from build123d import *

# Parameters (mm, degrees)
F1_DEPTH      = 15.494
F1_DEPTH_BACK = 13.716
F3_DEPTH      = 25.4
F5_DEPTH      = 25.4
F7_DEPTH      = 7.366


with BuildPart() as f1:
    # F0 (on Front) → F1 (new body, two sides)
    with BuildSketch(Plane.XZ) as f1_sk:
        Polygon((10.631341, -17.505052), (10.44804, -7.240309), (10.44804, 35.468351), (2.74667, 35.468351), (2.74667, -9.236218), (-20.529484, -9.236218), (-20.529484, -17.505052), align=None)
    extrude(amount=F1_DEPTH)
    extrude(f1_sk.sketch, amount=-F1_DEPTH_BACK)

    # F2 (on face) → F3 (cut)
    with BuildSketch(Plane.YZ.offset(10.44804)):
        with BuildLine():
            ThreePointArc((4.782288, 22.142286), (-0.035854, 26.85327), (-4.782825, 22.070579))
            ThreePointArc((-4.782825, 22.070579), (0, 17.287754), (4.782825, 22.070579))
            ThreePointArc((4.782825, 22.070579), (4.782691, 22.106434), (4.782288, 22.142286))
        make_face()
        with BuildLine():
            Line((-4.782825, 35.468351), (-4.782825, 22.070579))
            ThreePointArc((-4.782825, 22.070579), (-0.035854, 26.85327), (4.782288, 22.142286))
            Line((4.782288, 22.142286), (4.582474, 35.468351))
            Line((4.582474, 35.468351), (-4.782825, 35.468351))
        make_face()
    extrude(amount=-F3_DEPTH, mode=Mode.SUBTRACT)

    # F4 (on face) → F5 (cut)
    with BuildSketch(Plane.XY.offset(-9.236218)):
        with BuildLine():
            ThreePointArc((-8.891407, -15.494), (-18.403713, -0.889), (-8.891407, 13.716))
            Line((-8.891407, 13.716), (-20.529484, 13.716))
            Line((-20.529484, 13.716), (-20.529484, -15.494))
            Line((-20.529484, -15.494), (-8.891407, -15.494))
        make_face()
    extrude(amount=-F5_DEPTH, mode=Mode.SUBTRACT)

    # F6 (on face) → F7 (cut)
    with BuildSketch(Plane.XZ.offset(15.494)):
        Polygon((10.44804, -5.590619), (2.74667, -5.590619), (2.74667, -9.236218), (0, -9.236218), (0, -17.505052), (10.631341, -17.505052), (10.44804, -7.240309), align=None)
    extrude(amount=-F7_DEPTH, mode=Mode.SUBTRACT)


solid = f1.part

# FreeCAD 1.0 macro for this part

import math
import FreeCAD as App
import Part
import Sketcher
from FreeCAD import Vector
Q = App.Units.Quantity


def add_polygon(sketch, points):
    """Adds a closed chain of lines whose ends are joined by coincident constraints."""
    first, n = sketch.GeometryCount, len(points)
    for a, b in zip(points, points[1:] + points[:1]):
        sketch.addGeometry(Part.LineSegment(App.Vector(*a, 0), App.Vector(*b, 0)), False)
    for i in range(n):
        sketch.addConstraint(Sketcher.Constraint("Coincident", first + i, 2, first + (i + 1) % n, 1))

doc = App.newDocument("Part")
body = doc.addObject("PartDesign::Body", "Body")

# Sketch on XZ plane
sketch1 = body.newObject("Sketcher::SketchObject", "Sketch")
sketch1.AttachmentSupport = (doc.getObject("XZ_Plane"), [""])
sketch1.MapMode = "FlatFace"
add_polygon(sketch1, [(11, -18), (10, -7), (10, 35), (3, 35), (3, -9), (-21, -9), (-21, -18)])  # lines 0-6
sketch1.addConstraint([
    Sketcher.Constraint("Vertical", 1),
    Sketcher.Constraint("Horizontal", 2),
    Sketcher.Constraint("Vertical", 3),
    Sketcher.Constraint("Horizontal", 4),
    Sketcher.Constraint("Vertical", 5),
    Sketcher.Constraint("Horizontal", 6),
    Sketcher.Constraint("DistanceX", 2, 2, 2, 1, 7.70137),
    Sketcher.Constraint("DistanceY", 1, 1, 1, 2, 42.70866),
    Sketcher.Constraint("DistanceY", 3, 2, 3, 1, 44.704569),
    Sketcher.Constraint("DistanceX", 0, 2, 6, 2, 0.183301),
    Sketcher.Constraint("Distance", 0, 10.26638),
    Sketcher.Constraint("DistanceX", 4, 2, 4, 1, 23.276154),
    Sketcher.Constraint("DistanceX", -1, 1, 0, 2, 10.44804),
    Sketcher.Constraint("DistanceY", 0, 2, -1, 1, 7.240309),
])
pad1 = body.newObject("PartDesign::Pad", "Pad")
pad1.Profile = sketch1
pad1.Type = "TwoLengths"
pad1.Length = Q("0.61 in")
pad1.Length2 = Q("0.54 in")

# Sketch on YZ plane
sketch2 = body.newObject("Sketcher::SketchObject", "Sketch001")
sketch2.AttachmentSupport = (doc.getObject("YZ_Plane"), [""])
sketch2.MapMode = "FlatFace"
sketch2.AttachmentOffset = App.Placement(Vector(0, 0, 10.44804), App.Rotation())
sketch2.addGeometry([
    Part.ArcOfCircle(Part.Circle(Vector(0, 22.07, 0), Vector(0, 0, 1), 4.78), math.radians(180), math.radians(360)),  # 0
    Part.ArcOfCircle(Part.Circle(Vector(0, 22.07, 0), Vector(0, 0, 1), 4.78), math.radians(0), math.radians(0.86)),  # 1
    Part.LineSegment(Vector(4.78, 22.14, 0), Vector(4.58, 35.47, 0)),  # 2
    Part.LineSegment(Vector(4.58, 35.47, 0), Vector(-4.78, 35.47, 0)),  # 3
    Part.LineSegment(Vector(-4.78, 35.47, 0), Vector(-4.78, 22.07, 0)),  # 4
], False)
sketch2.addConstraint([
    Sketcher.Constraint("Coincident", 0, 2, 1, 1),
    Sketcher.Constraint("Tangent", 1, 2, 2, 1),
    Sketcher.Constraint("Coincident", 2, 2, 3, 1),
    Sketcher.Constraint("Coincident", 3, 2, 4, 1),
    Sketcher.Constraint("Tangent", 4, 2, 0, 1),
    Sketcher.Constraint("Horizontal", 3),
    Sketcher.Constraint("Vertical", 4),
    Sketcher.Constraint("Symmetric", 0, 2, 4, 2, -2),
    Sketcher.Constraint("Radius", 0, Q("0.1883002 in")),
    Sketcher.Constraint("Radius", 1, 4.778782),
    Sketcher.Constraint("DistanceX", 3, 2, 3, 1, 9.365299),
    Sketcher.Constraint("DistanceY", 4, 2, 4, 1, 13.397772),
    Sketcher.Constraint("DistanceY", -1, 1, 0, 3, 22.070579),
    Sketcher.Constraint("Distance", 2, 13.327563),
])
pocket1 = body.newObject("PartDesign::Pocket", "Pocket")
pocket1.Profile = sketch2
pocket1.Length = Q("1 in")

# Sketch on XY plane
sketch3 = body.newObject("Sketcher::SketchObject", "Sketch002")
sketch3.AttachmentSupport = (doc.getObject("XY_Plane"), [""])
sketch3.MapMode = "FlatFace"
sketch3.AttachmentOffset = App.Placement(Vector(0, 0, -9.236218), App.Rotation())
sketch3.addGeometry([
    Part.ArcOfCircle(Part.Circle(Vector(-2, -1, 0), Vector(0, 0, 1), 16), math.radians(114), math.radians(246)),
    Part.LineSegment(Vector(-9, 14, 0), Vector(-21, 14, 0)),
    Part.LineSegment(Vector(-21, 14, 0), Vector(-21, -15, 0)),
    Part.LineSegment(Vector(-21, -15, 0), Vector(-9, -15, 0)),
], False)
sketch3.addConstraint([
    Sketcher.Constraint("Coincident", 0, 1, 1, 1),
    Sketcher.Constraint("Coincident", 1, 2, 2, 1),
    Sketcher.Constraint("Coincident", 2, 2, 3, 1),
    Sketcher.Constraint("Coincident", 3, 2, 0, 2),
    Sketcher.Constraint("Horizontal", 1),
    Sketcher.Constraint("Vertical", 2),
    Sketcher.Constraint("Horizontal", 3),
    Sketcher.Constraint("Vertical", 0, 1, 3, 2),
    Sketcher.Constraint("DistanceY", 2, 2, 2, 1, Q("1.15 in")),
    Sketcher.Constraint("DistanceY", -1, 1, 0, 1, Q("0.54 in")),
    Sketcher.Constraint("Radius", 0, 15.968262),
    Sketcher.Constraint("DistanceX", 1, 2, 1, 1, 11.638077),
    Sketcher.Constraint("DistanceX", 0, 3, -1, 1, 2.435451),
])
pocket2 = body.newObject("PartDesign::Pocket", "Pocket001")
pocket2.Profile = sketch3
pocket2.Length = Q("1 in")

# Sketch on XZ plane
sketch4 = body.newObject("Sketcher::SketchObject", "Sketch003")
sketch4.AttachmentSupport = (doc.getObject("XZ_Plane"), [""])
sketch4.MapMode = "FlatFace"
sketch4.AttachmentOffset = App.Placement(Vector(0, 0, 0.61 * 25.4), App.Rotation())
add_polygon(sketch4, [(10.4, -5.6), (2.7, -5.6), (2.7, -9.2), (0, -9.2), (0, -17.5), (10.6, -17.5), (10.4, -7.2)])  # lines 0-6
sketch4.addConstraint([
    Sketcher.Constraint("Horizontal", 0),
    Sketcher.Constraint("Vertical", 1),
    Sketcher.Constraint("Horizontal", 2),
    Sketcher.Constraint("Vertical", 3),
    Sketcher.Constraint("Horizontal", 4),
    Sketcher.Constraint("Vertical", 6),
    Sketcher.Constraint("PointOnObject", 2, 2, -2),
    Sketcher.Constraint("DistanceY", 1, 2, 1, 1, 3.645599),
    Sketcher.Constraint("DistanceX", 0, 2, 0, 1, 7.70137),
    Sketcher.Constraint("DistanceX", 2, 2, 2, 1, 2.74667),
    Sketcher.Constraint("DistanceX", 4, 1, 4, 2, 10.631341),
    Sketcher.Constraint("DistanceY", 6, 1, 6, 2, 1.64969),
    Sketcher.Constraint("Distance", 5, 10.26638),
    Sketcher.Constraint("DistanceY", 0, 2, -1, 1, 5.590619),
])
pocket3 = body.newObject("PartDesign::Pocket", "Pocket002")
pocket3.Profile = sketch4
pocket3.Length = Q("0.29 in")

doc.recompute()
